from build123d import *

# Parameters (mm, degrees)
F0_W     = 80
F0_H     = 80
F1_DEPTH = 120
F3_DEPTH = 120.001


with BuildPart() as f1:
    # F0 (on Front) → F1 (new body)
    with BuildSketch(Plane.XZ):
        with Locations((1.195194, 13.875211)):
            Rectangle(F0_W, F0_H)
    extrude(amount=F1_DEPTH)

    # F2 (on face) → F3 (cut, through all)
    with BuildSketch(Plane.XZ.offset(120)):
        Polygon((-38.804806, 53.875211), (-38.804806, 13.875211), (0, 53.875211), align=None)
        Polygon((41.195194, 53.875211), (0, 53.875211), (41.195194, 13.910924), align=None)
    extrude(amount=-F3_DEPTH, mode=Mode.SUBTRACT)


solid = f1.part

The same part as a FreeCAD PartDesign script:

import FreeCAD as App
import Part
import Sketcher
from FreeCAD import Vector
Q = App.Units.Quantity

doc = App.newDocument("Part")
body = doc.addObject("PartDesign::Body", "Body")

sketch1 = body.newObject("Sketcher::SketchObject", "Sketch")
sketch1.AttachmentSupport = (doc.getObject("XZ_Plane"), [""])
sketch1.MapMode = "FlatFace"
sketch1.addGeometry(Part.LineSegment(Vector(-39, 54, 0), Vector(-39, -26, 0)), False)
sketch1.addGeometry(Part.LineSegment(Vector(-39, -26, 0), Vector(41, -26, 0)), False)
sketch1.addGeometry(Part.LineSegment(Vector(41, -26, 0), Vector(41, 54, 0)), False)
sketch1.addGeometry(Part.LineSegment(Vector(41, 54, 0), Vector(-39, 54, 0)), False)
sketch1.addConstraint(Sketcher.Constraint("Coincident", 0, 2, 1, 1))
sketch1.addConstraint(Sketcher.Constraint("Coincident", 1, 2, 2, 1))
sketch1.addConstraint(Sketcher.Constraint("Coincident", 2, 2, 3, 1))
sketch1.addConstraint(Sketcher.Constraint("Coincident", 3, 2, 0, 1))
sketch1.addConstraint(Sketcher.Constraint("Vertical", 0))
sketch1.addConstraint(Sketcher.Constraint("Horizontal", 1))
sketch1.addConstraint(Sketcher.Constraint("Vertical", 2))
sketch1.addConstraint(Sketcher.Constraint("Horizontal", 3))
sketch1.addConstraint(Sketcher.Constraint("Equal", 3, 0))
sketch1.addConstraint(Sketcher.Constraint("DistanceX", 1, 1, 1, 2, Q("80 mm")))
sketch1.addConstraint(Sketcher.Constraint("DistanceY", 0, 2, -1, 1, Q("26.124789 mm")))
sketch1.addConstraint(Sketcher.Constraint("DistanceX", 0, 2, -1, 1, Q("38.804806 mm")))
pad1 = body.newObject("PartDesign::Pad", "Pad")
pad1.Profile = sketch1
pad1.Length = 120

sketch2 = body.newObject("Sketcher::SketchObject", "Sketch001")
sketch2.AttachmentSupport = (doc.getObject("XZ_Plane"), [""])
sketch2.MapMode = "FlatFace"
sketch2.AttachmentOffset = App.Placement(Vector(0, 0, 120), App.Rotation())
sketch2.addGeometry(Part.LineSegment(Vector(-39, 54, 0), Vector(-39, 14, 0)), False)
sketch2.addGeometry(Part.LineSegment(Vector(-39, 14, 0), Vector(0, 54, 0)), False)
sketch2.addGeometry(Part.LineSegment(Vector(0, 54, 0), Vector(-39, 54, 0)), False)
sketch2.addGeometry(Part.LineSegment(Vector(41, 54, 0), Vector(0, 54, 0)), False)
sketch2.addGeometry(Part.LineSegment(Vector(0, 54, 0), Vector(41, 14, 0)), False)
sketch2.addGeometry(Part.LineSegment(Vector(41, 14, 0), Vector(41, 54, 0)), False)
sketch2.addConstraint(Sketcher.Constraint("Coincident", 0, 2, 1, 1))
sketch2.addConstraint(Sketcher.Constraint("Coincident", 1, 2, 2, 1))
sketch2.addConstraint(Sketcher.Constraint("Coincident", 2, 2, 0, 1))
sketch2.addConstraint(Sketcher.Constraint("Coincident", 3, 2, 4, 1))
sketch2.addConstraint(Sketcher.Constraint("Coincident", 4, 2, 5, 1))
sketch2.addConstraint(Sketcher.Constraint("Coincident", 5, 2, 3, 1))
sketch2.addConstraint(Sketcher.Constraint("Vertical", 0))
sketch2.addConstraint(Sketcher.Constraint("Horizontal", 2))
sketch2.addConstraint(Sketcher.Constraint("Horizontal", 3))
sketch2.addConstraint(Sketcher.Constraint("Vertical", 5))
sketch2.addConstraint(Sketcher.Constraint("Coincident", 3, 2, 1, 2))
sketch2.addConstraint(Sketcher.Constraint("PointOnObject", 1, 2, -2))
sketch2.addConstraint(Sketcher.Constraint("Perpendicular", 1, 4))
sketch2.addConstraint(Sketcher.Constraint("DistanceY", 0, 2, 0, 1, Q("40 mm")))
sketch2.addConstraint(Sketcher.Constraint("DistanceX", 0, 2, 4, 2, Q("80 mm")))
sketch2.addConstraint(Sketcher.Constraint("Distance", 1, Q("55.729821 mm")))
sketch2.addConstraint(Sketcher.Constraint("DistanceY", -1, 1, 0, 2, Q("13.875211 mm")))
pocket1 = body.newObject("PartDesign::Pocket", "Pocket")
pocket1.Profile = sketch2
pocket1.Type = "ThroughAll"

doc.recompute()
